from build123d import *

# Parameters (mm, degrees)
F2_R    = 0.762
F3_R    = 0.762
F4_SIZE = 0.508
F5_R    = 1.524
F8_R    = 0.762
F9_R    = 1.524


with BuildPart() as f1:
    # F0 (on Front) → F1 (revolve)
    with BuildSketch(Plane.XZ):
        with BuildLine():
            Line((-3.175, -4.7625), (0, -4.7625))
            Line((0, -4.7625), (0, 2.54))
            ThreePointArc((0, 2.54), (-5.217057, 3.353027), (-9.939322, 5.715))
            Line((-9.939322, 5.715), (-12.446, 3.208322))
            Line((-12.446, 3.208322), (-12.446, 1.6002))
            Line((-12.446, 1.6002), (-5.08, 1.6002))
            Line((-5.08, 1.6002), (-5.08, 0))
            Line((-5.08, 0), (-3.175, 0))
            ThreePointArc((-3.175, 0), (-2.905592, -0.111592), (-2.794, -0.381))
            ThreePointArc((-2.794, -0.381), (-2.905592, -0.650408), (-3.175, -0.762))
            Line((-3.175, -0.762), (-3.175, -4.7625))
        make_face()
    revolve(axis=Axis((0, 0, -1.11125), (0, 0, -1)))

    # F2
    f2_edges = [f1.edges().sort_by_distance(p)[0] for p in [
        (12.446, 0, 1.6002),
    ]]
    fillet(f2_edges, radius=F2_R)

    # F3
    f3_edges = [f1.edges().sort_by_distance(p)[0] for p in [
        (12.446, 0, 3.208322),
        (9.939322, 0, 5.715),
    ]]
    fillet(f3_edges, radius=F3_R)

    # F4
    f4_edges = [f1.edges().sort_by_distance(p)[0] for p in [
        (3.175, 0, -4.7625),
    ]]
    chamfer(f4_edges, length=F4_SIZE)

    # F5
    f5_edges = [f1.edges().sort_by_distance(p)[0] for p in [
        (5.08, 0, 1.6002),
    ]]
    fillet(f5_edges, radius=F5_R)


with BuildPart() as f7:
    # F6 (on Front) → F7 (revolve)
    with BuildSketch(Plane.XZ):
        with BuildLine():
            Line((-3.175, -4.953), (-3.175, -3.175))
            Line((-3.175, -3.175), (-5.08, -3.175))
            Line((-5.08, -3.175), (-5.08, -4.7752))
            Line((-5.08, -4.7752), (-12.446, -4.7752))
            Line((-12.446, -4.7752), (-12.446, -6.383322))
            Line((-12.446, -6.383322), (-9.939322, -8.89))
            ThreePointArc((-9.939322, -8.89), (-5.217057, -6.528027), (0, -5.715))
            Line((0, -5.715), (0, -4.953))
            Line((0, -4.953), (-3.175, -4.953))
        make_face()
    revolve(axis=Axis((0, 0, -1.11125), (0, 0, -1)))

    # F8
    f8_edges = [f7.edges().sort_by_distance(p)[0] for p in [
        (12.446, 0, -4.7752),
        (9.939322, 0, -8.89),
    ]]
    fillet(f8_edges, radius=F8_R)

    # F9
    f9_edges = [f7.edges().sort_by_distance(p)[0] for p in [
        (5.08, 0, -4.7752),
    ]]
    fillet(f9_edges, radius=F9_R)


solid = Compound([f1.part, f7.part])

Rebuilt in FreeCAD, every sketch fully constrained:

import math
import FreeCAD as App
import Part
import Sketcher

V = App.Vector
Q = App.Units.Quantity


def edges_at(feature, points):
    """Names of the edges that pass closest to the given points."""
    edges = feature.Shape.Edges
    near = lambda p: min(range(len(edges)), key=lambda i: edges[i].distToShape(Part.Vertex(*p))[0])
    return sorted({f"Edge{near(p) + 1}" for p in points})

doc = App.newDocument("Part")
body = doc.addObject("PartDesign::Body", "Body")

# Sketch on XZ plane
sketch1 = doc.addObject("Sketcher::SketchObject", "Sketch")
body.addObject(sketch1)
sketch1.AttachmentSupport = (doc.XZ_Plane, [""])
sketch1.MapMode = "FlatFace"
sketch1.addGeometry(Part.LineSegment(V(-3.17, -4.76, 0), V(0, -4.76, 0)), False)
sketch1.addGeometry(Part.LineSegment(V(0, -4.76, 0), V(0, 2.54, 0)), False)
sketch1.addGeometry(Part.ArcOfCircle(Part.Circle(V(0, 19.68, 0), V(0, 0, 1), 17.14), math.radians(-125), math.radians(-90)), False)
sketch1.addGeometry(Part.LineSegment(V(-9.94, 5.71, 0), V(-12.45, 3.21, 0)), False)
sketch1.addGeometry(Part.LineSegment(V(-12.45, 3.21, 0), V(-12.45, 1.6, 0)), False)
sketch1.addGeometry(Part.LineSegment(V(-12.45, 1.6, 0), V(-5.08, 1.6, 0)), False)
sketch1.addGeometry(Part.LineSegment(V(-5.08, 1.6, 0), V(-5.08, 0, 0)), False)
sketch1.addGeometry(Part.LineSegment(V(-5.08, 0, 0), V(-3.17, 0, 0)), False)
sketch1.addGeometry(Part.ArcOfCircle(Part.Circle(V(-3.17, -0.38, 0), V(0, 0, 1), 0.38), math.radians(0), math.radians(90)), False)
sketch1.addGeometry(Part.ArcOfCircle(Part.Circle(V(-3.17, -0.38, 0), V(0, 0, 1), 0.38), math.radians(-90), math.radians(0)), False)
sketch1.addGeometry(Part.LineSegment(V(-3.17, -0.76, 0), V(-3.17, -4.76, 0)), False)
sketch1.addConstraint(Sketcher.Constraint("Coincident", 0, 2, 1, 1))
sketch1.addConstraint(Sketcher.Constraint("Coincident", 1, 2, 2, 2))
sketch1.addConstraint(Sketcher.Constraint("Coincident", 2, 1, 3, 1))
sketch1.addConstraint(Sketcher.Constraint("Coincident", 3, 2, 4, 1))
sketch1.addConstraint(Sketcher.Constraint("Coincident", 4, 2, 5, 1))
sketch1.addConstraint(Sketcher.Constraint("Coincident", 5, 2, 6, 1))
sketch1.addConstraint(Sketcher.Constraint("Coincident", 6, 2, 7, 1))
sketch1.addConstraint(Sketcher.Constraint("Coincident", 7, 2, 8, 2))
sketch1.addConstraint(Sketcher.Constraint("Coincident", 8, 1, 9, 2))
sketch1.addConstraint(Sketcher.Constraint("Coincident", 9, 1, 10, 1))
sketch1.addConstraint(Sketcher.Constraint("Coincident", 10, 2, 0, 1))
sketch1.addConstraint(Sketcher.Constraint("Horizontal", 0))
sketch1.addConstraint(Sketcher.Constraint("Vertical", 1))
sketch1.addConstraint(Sketcher.Constraint("Vertical", 4))
sketch1.addConstraint(Sketcher.Constraint("Horizontal", 5))
sketch1.addConstraint(Sketcher.Constraint("Vertical", 6))
sketch1.addConstraint(Sketcher.Constraint("Horizontal", 7))
sketch1.addConstraint(Sketcher.Constraint("Vertical", 10))
sketch1.addConstraint(Sketcher.Constraint("Coincident", 9, 3, 8, 3))
sketch1.addConstraint(Sketcher.Constraint("PointOnObject", 2, 3, -2))
sketch1.addConstraint(Sketcher.Constraint("PointOnObject", 0, 2, -2))
sketch1.addConstraint(Sketcher.Constraint("PointOnObject", 6, 2, -1))
sketch1.addConstraint(Sketcher.Constraint("Horizontal", 9, 3, 8, 1))
sketch1.addConstraint(Sketcher.Constraint("Vertical", 9, 3, 7, 2))
sketch1.addConstraint(Sketcher.Constraint("Vertical", 7, 2, 9, 1))
sketch1.addConstraint(Sketcher.Constraint("Angle", 3, Q("-135 deg")))
sketch1.addConstraint(Sketcher.Constraint("Radius", 2, Q("0.6749999 in")))
sketch1.addConstraint(Sketcher.Constraint("Radius", 8, Q("0.015 in")))
sketch1.addConstraint(Sketcher.Constraint("DistanceX", 5, 1, 5, 2, Q("0.29 in")))
sketch1.addConstraint(Sketcher.Constraint("DistanceY", -1, 1, 1, 2, Q("0.1 in")))
sketch1.addConstraint(Sketcher.Constraint("DistanceX", 5, 2, -1, 1, Q("0.2 in")))
sketch1.addConstraint(Sketcher.Constraint("DistanceX", 0, 1, 0, 2, Q("0.125 in")))
sketch1.addConstraint(Sketcher.Constraint("DistanceY", 6, 2, 6, 1, Q("0.063 in")))
sketch1.addConstraint(Sketcher.Constraint("DistanceY", 8, 3, 2, 1, Q("0.24 in")))
sketch1.addConstraint(Sketcher.Constraint("DistanceY", 1, 1, 1, 2, Q("0.2875 in")))
revolution = doc.addObject("PartDesign::Revolution", "Revolution")
body.addObject(revolution)
revolution.Profile = sketch1
revolution.ReferenceAxis = (sketch1, ["V_Axis"])
revolution.Angle = 360
doc.recompute()

fillet = doc.addObject("PartDesign::Fillet", "Fillet")
body.addObject(fillet)
fillet.Base = (revolution, edges_at(revolution, [(12.446, 0, 1.6)]))
fillet.Radius = Q("0.03 in")
doc.recompute()

fillet2 = doc.addObject("PartDesign::Fillet", "Fillet001")
body.addObject(fillet2)
fillet2.Base = (fillet, edges_at(fillet, [(12.446, 0, 3.208), (9.939, 0, 5.715)]))
fillet2.Radius = Q("0.03 in")
doc.recompute()

chamfer = doc.addObject("PartDesign::Chamfer", "Chamfer")
body.addObject(chamfer)
chamfer.Base = (fillet2, edges_at(fillet2, [(3.175, 0, -4.763)]))
chamfer.Size = Q("0.02 in")
doc.recompute()

fillet3 = doc.addObject("PartDesign::Fillet", "Fillet002")
body.addObject(fillet3)
fillet3.Base = (chamfer, edges_at(chamfer, [(5.08, 0, 1.6)]))
fillet3.Radius = Q("0.06 in")
body2 = doc.addObject("PartDesign::Body", "Body001")

# Sketch on XZ plane
sketch2 = doc.addObject("Sketcher::SketchObject", "Sketch001")
body2.addObject(sketch2)
sketch2.AttachmentSupport = (doc.getObject("XZ_Plane001"), [""])
sketch2.MapMode = "FlatFace"
sketch2.addGeometry(Part.LineSegment(V(-3.2, -5, 0), V(-3.2, -3.2, 0)), False)
sketch2.addGeometry(Part.LineSegment(V(-3.2, -3.2, 0), V(-5.1, -3.2, 0)), False)
sketch2.addGeometry(Part.LineSegment(V(-5.1, -3.2, 0), V(-5.1, -4.8, 0)), False)
sketch2.addGeometry(Part.LineSegment(V(-5.1, -4.8, 0), V(-12.4, -4.8, 0)), False)
sketch2.addGeometry(Part.LineSegment(V(-12.4, -4.8, 0), V(-12.4, -6.4, 0)), False)
sketch2.addGeometry(Part.LineSegment(V(-12.4, -6.4, 0), V(-9.9, -8.9, 0)), False)
sketch2.addGeometry(Part.ArcOfCircle(Part.Circle(V(0, -22.9, 0), V(0, 0, 1), 17.1), math.radians(90), math.radians(125)), False)
sketch2.addGeometry(Part.LineSegment(V(0, -5.7, 0), V(0, -5, 0)), False)
sketch2.addGeometry(Part.LineSegment(V(0, -5, 0), V(-3.2, -5, 0)), False)
sketch2.addConstraint(Sketcher.Constraint("Coincident", 0, 2, 1, 1))
sketch2.addConstraint(Sketcher.Constraint("Coincident", 1, 2, 2, 1))
sketch2.addConstraint(Sketcher.Constraint("Coincident", 2, 2, 3, 1))
sketch2.addConstraint(Sketcher.Constraint("Coincident", 3, 2, 4, 1))
sketch2.addConstraint(Sketcher.Constraint("Coincident", 4, 2, 5, 1))
sketch2.addConstraint(Sketcher.Constraint("Coincident", 5, 2, 6, 2))
sketch2.addConstraint(Sketcher.Constraint("Coincident", 6, 1, 7, 1))
sketch2.addConstraint(Sketcher.Constraint("Coincident", 7, 2, 8, 1))
sketch2.addConstraint(Sketcher.Constraint("Coincident", 8, 2, 0, 1))
sketch2.addConstraint(Sketcher.Constraint("Vertical", 0))
sketch2.addConstraint(Sketcher.Constraint("Horizontal", 1))
sketch2.addConstraint(Sketcher.Constraint("Vertical", 2))
sketch2.addConstraint(Sketcher.Constraint("Horizontal", 3))
sketch2.addConstraint(Sketcher.Constraint("Vertical", 4))
sketch2.addConstraint(Sketcher.Constraint("Vertical", 7))
sketch2.addConstraint(Sketcher.Constraint("Horizontal", 8))
sketch2.addConstraint(Sketcher.Constraint("PointOnObject", 6, 3, -2))
sketch2.addConstraint(Sketcher.Constraint("PointOnObject", 6, 1, -2))
sketch2.addConstraint(Sketcher.Constraint("Angle", 5, Q("-45 deg")))
sketch2.addConstraint(Sketcher.Constraint("Radius", 6, Q("0.6749999 in")))
sketch2.addConstraint(Sketcher.Constraint("DistanceX", 3, 2, 3, 1, Q("0.29 in")))
sketch2.addConstraint(Sketcher.Constraint("DistanceY", 0, 1, 0, 2, Q("0.07 in")))
sketch2.addConstraint(Sketcher.Constraint("DistanceY", 7, 1, 7, 2, Q("0.03 in")))
sketch2.addConstraint(Sketcher.Constraint("DistanceY", 6, 3, -1, 1, Q("0.8999999 in")))
sketch2.addConstraint(Sketcher.Constraint("DistanceX", 1, 2, -1, 1, Q("0.2 in")))
sketch2.addConstraint(Sketcher.Constraint("DistanceX", 1, 2, 1, 1, Q("0.075 in")))
sketch2.addConstraint(Sketcher.Constraint("DistanceY", 2, 2, 2, 1, Q("0.063 in")))
sketch2.addConstraint(Sketcher.Constraint("DistanceY", 5, 2, -1, 1, Q("0.35 in")))
revolution2 = doc.addObject("PartDesign::Revolution", "Revolution001")
body2.addObject(revolution2)
revolution2.Profile = sketch2
revolution2.ReferenceAxis = (sketch2, ["V_Axis"])
revolution2.Angle = 360
doc.recompute()

fillet4 = doc.addObject("PartDesign::Fillet", "Fillet003")
body2.addObject(fillet4)
fillet4.Base = (revolution2, edges_at(revolution2, [(12.446, 0, -4.775), (9.939, 0, -8.89)]))
fillet4.Radius = Q("0.03 in")
doc.recompute()

fillet5 = doc.addObject("PartDesign::Fillet", "Fillet004")
body2.addObject(fillet5)
fillet5.Base = (fillet4, edges_at(fillet4, [(5.08, 0, -4.775)]))
fillet5.Radius = Q("0.06 in")

doc.recompute()
